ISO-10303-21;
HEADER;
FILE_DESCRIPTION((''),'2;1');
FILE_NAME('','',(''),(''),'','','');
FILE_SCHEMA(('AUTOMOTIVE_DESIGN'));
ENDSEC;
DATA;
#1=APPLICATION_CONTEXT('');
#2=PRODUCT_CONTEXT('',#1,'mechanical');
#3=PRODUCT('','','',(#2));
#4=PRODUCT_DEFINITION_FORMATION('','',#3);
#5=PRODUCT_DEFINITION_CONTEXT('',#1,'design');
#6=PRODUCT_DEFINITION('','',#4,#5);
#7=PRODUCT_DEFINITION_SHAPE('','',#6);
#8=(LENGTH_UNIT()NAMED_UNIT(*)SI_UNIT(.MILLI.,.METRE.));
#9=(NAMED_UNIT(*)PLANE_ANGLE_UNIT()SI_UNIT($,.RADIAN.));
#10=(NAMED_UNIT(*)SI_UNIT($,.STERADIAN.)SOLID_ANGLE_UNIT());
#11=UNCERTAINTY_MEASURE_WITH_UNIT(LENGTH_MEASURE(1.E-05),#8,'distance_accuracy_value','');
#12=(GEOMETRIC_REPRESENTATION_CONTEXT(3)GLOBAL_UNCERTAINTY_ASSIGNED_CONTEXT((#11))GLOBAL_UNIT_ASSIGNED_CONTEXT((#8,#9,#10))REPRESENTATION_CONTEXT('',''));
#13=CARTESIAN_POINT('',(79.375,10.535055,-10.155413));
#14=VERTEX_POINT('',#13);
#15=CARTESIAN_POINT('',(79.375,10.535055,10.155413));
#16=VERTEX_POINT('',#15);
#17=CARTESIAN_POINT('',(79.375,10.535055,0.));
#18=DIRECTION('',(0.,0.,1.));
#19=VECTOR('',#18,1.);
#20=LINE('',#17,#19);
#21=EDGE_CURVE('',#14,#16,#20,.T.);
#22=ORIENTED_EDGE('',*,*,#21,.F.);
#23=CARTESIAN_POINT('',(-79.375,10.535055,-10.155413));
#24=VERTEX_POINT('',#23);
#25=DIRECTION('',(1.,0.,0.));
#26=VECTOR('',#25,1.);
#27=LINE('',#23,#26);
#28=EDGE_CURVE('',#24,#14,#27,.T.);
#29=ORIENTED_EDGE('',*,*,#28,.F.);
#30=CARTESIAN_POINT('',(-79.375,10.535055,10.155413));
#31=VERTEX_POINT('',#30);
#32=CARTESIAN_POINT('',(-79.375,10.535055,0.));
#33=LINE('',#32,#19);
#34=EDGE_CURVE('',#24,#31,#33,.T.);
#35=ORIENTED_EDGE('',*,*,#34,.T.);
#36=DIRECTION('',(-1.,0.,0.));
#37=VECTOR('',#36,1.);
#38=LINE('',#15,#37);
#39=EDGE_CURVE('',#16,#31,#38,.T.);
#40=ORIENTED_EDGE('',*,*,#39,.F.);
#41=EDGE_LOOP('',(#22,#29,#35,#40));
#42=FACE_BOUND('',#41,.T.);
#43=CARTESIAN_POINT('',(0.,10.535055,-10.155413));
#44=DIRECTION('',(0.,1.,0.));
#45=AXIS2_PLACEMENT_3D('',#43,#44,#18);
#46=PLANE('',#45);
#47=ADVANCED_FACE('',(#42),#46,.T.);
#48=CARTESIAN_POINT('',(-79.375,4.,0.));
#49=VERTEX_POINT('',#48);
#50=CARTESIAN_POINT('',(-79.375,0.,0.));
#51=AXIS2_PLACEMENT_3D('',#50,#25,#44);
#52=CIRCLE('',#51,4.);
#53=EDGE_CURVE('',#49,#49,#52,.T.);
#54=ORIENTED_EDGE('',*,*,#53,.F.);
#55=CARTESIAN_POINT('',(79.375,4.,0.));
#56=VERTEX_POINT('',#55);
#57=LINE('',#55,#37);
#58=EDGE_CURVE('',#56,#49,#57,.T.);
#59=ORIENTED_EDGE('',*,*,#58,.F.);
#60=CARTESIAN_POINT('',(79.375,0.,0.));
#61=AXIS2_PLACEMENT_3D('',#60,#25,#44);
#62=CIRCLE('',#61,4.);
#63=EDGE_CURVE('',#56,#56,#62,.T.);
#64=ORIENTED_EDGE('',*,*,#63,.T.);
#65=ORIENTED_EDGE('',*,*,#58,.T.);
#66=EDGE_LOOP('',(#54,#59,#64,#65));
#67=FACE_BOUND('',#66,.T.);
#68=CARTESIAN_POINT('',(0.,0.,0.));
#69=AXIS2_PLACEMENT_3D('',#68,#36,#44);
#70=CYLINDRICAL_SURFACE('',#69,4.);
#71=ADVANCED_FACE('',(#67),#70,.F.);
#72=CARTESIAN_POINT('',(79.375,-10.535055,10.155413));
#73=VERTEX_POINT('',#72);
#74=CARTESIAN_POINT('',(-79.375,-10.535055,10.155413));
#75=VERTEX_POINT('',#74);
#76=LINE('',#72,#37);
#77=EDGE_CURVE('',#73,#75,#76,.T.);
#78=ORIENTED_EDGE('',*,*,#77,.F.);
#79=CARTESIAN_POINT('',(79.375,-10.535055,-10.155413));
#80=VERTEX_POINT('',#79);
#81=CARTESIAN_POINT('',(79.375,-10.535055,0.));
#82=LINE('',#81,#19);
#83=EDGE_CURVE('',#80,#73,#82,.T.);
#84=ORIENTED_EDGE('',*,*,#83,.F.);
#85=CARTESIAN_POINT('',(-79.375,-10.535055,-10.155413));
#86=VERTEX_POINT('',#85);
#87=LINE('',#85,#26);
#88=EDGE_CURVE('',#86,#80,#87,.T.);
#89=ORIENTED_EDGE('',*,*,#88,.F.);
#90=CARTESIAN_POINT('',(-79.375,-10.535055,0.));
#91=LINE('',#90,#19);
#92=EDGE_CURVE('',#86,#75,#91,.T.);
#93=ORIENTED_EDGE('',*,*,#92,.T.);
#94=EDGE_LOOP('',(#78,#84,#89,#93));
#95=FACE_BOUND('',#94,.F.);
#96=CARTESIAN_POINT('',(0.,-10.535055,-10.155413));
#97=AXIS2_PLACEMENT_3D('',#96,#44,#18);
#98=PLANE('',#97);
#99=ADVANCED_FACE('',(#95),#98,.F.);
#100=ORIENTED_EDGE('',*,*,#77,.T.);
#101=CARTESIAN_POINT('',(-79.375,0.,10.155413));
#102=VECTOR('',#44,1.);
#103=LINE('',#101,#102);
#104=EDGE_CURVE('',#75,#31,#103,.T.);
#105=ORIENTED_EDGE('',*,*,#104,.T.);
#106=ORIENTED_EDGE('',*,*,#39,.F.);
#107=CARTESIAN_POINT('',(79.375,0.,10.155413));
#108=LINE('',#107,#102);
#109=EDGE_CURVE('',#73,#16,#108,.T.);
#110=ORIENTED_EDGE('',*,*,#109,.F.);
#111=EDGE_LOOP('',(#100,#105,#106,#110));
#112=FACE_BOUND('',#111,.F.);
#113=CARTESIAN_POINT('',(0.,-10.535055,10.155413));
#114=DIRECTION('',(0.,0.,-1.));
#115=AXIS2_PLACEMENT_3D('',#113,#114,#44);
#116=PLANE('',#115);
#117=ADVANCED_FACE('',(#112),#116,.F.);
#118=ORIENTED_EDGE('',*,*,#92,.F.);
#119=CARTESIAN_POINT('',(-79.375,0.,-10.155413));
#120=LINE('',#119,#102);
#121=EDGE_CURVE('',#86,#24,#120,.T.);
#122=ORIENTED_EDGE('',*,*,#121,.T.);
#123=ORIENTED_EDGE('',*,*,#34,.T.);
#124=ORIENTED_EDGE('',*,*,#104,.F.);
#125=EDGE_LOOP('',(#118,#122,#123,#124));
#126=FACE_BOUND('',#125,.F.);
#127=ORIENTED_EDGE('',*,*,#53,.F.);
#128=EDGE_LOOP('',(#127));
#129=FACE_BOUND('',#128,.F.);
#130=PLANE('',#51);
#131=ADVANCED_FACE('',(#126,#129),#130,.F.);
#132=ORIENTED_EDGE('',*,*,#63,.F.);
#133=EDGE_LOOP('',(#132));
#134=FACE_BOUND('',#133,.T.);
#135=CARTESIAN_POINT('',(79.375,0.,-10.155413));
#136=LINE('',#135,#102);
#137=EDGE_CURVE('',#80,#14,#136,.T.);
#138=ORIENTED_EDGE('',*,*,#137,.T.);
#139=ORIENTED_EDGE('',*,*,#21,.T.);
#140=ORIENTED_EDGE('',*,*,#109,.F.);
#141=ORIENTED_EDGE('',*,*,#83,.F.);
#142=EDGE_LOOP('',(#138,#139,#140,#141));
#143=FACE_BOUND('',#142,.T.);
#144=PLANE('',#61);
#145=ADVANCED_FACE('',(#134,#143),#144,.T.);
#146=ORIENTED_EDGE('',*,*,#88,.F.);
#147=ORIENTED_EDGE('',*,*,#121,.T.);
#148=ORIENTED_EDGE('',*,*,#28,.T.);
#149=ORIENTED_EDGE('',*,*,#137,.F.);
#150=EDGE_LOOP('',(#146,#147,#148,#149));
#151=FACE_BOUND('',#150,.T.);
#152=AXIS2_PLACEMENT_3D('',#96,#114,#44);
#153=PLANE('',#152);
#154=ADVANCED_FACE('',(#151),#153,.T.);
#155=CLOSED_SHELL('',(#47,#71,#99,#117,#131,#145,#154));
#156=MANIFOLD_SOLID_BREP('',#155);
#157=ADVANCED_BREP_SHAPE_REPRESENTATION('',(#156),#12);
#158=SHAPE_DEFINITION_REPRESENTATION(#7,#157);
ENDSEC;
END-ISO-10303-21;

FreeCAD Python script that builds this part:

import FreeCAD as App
import Part
import Sketcher
from FreeCAD import Vector
Q = App.Units.Quantity


def add_polygon(sketch, points):
    """Adds a closed chain of lines whose ends are joined by coincident constraints."""
    first, n = sketch.GeometryCount, len(points)
    for a, b in zip(points, points[1:] + points[:1]):
        sketch.addGeometry(Part.LineSegment(App.Vector(*a, 0), App.Vector(*b, 0)), False)
    for i in range(n):
        sketch.addConstraint(Sketcher.Constraint("Coincident", first + i, 2, first + (i + 1) % n, 1))

doc = App.newDocument("Part")
body = doc.addObject("PartDesign::Body", "Body")

sketch1 = body.newObject("Sketcher::SketchObject", "Sketch")
sketch1.AttachmentSupport = (doc.getObject("YZ_Plane"), [""])
sketch1.MapMode = "FlatFace"
add_polygon(sketch1, [(-10.5, 10.2), (-10.5, -10.2), (10.5, -10.2), (10.5, 10.2)])
sketch1.addGeometry(Part.Circle(Vector(0, 0, 0), Vector(0, 0, 1), 4), False)
sketch1.addConstraint([
    Sketcher.Constraint("Vertical", 0),
    Sketcher.Constraint("Horizontal", 1),
    Sketcher.Constraint("Vertical", 2),
    Sketcher.Constraint("Horizontal", 3),
    Sketcher.Constraint("Coincident", 4, 3, -1, 1),
    Sketcher.Constraint("Symmetric", 0, 2, 2, 2, -1, 1),
    Sketcher.Constraint("Diameter", 4, Q("8 mm")),
    Sketcher.Constraint("DistanceX", 1, 1, 1, 2, Q("21.07011 mm")),
    Sketcher.Constraint("DistanceY", 0, 2, 0, 1, Q("20.310826 mm")),
])
pad1 = body.newObject("PartDesign::Pad", "Pad")
pad1.Profile = sketch1
pad1.Length = 158.75
pad1.Midplane = True

doc.recompute()
